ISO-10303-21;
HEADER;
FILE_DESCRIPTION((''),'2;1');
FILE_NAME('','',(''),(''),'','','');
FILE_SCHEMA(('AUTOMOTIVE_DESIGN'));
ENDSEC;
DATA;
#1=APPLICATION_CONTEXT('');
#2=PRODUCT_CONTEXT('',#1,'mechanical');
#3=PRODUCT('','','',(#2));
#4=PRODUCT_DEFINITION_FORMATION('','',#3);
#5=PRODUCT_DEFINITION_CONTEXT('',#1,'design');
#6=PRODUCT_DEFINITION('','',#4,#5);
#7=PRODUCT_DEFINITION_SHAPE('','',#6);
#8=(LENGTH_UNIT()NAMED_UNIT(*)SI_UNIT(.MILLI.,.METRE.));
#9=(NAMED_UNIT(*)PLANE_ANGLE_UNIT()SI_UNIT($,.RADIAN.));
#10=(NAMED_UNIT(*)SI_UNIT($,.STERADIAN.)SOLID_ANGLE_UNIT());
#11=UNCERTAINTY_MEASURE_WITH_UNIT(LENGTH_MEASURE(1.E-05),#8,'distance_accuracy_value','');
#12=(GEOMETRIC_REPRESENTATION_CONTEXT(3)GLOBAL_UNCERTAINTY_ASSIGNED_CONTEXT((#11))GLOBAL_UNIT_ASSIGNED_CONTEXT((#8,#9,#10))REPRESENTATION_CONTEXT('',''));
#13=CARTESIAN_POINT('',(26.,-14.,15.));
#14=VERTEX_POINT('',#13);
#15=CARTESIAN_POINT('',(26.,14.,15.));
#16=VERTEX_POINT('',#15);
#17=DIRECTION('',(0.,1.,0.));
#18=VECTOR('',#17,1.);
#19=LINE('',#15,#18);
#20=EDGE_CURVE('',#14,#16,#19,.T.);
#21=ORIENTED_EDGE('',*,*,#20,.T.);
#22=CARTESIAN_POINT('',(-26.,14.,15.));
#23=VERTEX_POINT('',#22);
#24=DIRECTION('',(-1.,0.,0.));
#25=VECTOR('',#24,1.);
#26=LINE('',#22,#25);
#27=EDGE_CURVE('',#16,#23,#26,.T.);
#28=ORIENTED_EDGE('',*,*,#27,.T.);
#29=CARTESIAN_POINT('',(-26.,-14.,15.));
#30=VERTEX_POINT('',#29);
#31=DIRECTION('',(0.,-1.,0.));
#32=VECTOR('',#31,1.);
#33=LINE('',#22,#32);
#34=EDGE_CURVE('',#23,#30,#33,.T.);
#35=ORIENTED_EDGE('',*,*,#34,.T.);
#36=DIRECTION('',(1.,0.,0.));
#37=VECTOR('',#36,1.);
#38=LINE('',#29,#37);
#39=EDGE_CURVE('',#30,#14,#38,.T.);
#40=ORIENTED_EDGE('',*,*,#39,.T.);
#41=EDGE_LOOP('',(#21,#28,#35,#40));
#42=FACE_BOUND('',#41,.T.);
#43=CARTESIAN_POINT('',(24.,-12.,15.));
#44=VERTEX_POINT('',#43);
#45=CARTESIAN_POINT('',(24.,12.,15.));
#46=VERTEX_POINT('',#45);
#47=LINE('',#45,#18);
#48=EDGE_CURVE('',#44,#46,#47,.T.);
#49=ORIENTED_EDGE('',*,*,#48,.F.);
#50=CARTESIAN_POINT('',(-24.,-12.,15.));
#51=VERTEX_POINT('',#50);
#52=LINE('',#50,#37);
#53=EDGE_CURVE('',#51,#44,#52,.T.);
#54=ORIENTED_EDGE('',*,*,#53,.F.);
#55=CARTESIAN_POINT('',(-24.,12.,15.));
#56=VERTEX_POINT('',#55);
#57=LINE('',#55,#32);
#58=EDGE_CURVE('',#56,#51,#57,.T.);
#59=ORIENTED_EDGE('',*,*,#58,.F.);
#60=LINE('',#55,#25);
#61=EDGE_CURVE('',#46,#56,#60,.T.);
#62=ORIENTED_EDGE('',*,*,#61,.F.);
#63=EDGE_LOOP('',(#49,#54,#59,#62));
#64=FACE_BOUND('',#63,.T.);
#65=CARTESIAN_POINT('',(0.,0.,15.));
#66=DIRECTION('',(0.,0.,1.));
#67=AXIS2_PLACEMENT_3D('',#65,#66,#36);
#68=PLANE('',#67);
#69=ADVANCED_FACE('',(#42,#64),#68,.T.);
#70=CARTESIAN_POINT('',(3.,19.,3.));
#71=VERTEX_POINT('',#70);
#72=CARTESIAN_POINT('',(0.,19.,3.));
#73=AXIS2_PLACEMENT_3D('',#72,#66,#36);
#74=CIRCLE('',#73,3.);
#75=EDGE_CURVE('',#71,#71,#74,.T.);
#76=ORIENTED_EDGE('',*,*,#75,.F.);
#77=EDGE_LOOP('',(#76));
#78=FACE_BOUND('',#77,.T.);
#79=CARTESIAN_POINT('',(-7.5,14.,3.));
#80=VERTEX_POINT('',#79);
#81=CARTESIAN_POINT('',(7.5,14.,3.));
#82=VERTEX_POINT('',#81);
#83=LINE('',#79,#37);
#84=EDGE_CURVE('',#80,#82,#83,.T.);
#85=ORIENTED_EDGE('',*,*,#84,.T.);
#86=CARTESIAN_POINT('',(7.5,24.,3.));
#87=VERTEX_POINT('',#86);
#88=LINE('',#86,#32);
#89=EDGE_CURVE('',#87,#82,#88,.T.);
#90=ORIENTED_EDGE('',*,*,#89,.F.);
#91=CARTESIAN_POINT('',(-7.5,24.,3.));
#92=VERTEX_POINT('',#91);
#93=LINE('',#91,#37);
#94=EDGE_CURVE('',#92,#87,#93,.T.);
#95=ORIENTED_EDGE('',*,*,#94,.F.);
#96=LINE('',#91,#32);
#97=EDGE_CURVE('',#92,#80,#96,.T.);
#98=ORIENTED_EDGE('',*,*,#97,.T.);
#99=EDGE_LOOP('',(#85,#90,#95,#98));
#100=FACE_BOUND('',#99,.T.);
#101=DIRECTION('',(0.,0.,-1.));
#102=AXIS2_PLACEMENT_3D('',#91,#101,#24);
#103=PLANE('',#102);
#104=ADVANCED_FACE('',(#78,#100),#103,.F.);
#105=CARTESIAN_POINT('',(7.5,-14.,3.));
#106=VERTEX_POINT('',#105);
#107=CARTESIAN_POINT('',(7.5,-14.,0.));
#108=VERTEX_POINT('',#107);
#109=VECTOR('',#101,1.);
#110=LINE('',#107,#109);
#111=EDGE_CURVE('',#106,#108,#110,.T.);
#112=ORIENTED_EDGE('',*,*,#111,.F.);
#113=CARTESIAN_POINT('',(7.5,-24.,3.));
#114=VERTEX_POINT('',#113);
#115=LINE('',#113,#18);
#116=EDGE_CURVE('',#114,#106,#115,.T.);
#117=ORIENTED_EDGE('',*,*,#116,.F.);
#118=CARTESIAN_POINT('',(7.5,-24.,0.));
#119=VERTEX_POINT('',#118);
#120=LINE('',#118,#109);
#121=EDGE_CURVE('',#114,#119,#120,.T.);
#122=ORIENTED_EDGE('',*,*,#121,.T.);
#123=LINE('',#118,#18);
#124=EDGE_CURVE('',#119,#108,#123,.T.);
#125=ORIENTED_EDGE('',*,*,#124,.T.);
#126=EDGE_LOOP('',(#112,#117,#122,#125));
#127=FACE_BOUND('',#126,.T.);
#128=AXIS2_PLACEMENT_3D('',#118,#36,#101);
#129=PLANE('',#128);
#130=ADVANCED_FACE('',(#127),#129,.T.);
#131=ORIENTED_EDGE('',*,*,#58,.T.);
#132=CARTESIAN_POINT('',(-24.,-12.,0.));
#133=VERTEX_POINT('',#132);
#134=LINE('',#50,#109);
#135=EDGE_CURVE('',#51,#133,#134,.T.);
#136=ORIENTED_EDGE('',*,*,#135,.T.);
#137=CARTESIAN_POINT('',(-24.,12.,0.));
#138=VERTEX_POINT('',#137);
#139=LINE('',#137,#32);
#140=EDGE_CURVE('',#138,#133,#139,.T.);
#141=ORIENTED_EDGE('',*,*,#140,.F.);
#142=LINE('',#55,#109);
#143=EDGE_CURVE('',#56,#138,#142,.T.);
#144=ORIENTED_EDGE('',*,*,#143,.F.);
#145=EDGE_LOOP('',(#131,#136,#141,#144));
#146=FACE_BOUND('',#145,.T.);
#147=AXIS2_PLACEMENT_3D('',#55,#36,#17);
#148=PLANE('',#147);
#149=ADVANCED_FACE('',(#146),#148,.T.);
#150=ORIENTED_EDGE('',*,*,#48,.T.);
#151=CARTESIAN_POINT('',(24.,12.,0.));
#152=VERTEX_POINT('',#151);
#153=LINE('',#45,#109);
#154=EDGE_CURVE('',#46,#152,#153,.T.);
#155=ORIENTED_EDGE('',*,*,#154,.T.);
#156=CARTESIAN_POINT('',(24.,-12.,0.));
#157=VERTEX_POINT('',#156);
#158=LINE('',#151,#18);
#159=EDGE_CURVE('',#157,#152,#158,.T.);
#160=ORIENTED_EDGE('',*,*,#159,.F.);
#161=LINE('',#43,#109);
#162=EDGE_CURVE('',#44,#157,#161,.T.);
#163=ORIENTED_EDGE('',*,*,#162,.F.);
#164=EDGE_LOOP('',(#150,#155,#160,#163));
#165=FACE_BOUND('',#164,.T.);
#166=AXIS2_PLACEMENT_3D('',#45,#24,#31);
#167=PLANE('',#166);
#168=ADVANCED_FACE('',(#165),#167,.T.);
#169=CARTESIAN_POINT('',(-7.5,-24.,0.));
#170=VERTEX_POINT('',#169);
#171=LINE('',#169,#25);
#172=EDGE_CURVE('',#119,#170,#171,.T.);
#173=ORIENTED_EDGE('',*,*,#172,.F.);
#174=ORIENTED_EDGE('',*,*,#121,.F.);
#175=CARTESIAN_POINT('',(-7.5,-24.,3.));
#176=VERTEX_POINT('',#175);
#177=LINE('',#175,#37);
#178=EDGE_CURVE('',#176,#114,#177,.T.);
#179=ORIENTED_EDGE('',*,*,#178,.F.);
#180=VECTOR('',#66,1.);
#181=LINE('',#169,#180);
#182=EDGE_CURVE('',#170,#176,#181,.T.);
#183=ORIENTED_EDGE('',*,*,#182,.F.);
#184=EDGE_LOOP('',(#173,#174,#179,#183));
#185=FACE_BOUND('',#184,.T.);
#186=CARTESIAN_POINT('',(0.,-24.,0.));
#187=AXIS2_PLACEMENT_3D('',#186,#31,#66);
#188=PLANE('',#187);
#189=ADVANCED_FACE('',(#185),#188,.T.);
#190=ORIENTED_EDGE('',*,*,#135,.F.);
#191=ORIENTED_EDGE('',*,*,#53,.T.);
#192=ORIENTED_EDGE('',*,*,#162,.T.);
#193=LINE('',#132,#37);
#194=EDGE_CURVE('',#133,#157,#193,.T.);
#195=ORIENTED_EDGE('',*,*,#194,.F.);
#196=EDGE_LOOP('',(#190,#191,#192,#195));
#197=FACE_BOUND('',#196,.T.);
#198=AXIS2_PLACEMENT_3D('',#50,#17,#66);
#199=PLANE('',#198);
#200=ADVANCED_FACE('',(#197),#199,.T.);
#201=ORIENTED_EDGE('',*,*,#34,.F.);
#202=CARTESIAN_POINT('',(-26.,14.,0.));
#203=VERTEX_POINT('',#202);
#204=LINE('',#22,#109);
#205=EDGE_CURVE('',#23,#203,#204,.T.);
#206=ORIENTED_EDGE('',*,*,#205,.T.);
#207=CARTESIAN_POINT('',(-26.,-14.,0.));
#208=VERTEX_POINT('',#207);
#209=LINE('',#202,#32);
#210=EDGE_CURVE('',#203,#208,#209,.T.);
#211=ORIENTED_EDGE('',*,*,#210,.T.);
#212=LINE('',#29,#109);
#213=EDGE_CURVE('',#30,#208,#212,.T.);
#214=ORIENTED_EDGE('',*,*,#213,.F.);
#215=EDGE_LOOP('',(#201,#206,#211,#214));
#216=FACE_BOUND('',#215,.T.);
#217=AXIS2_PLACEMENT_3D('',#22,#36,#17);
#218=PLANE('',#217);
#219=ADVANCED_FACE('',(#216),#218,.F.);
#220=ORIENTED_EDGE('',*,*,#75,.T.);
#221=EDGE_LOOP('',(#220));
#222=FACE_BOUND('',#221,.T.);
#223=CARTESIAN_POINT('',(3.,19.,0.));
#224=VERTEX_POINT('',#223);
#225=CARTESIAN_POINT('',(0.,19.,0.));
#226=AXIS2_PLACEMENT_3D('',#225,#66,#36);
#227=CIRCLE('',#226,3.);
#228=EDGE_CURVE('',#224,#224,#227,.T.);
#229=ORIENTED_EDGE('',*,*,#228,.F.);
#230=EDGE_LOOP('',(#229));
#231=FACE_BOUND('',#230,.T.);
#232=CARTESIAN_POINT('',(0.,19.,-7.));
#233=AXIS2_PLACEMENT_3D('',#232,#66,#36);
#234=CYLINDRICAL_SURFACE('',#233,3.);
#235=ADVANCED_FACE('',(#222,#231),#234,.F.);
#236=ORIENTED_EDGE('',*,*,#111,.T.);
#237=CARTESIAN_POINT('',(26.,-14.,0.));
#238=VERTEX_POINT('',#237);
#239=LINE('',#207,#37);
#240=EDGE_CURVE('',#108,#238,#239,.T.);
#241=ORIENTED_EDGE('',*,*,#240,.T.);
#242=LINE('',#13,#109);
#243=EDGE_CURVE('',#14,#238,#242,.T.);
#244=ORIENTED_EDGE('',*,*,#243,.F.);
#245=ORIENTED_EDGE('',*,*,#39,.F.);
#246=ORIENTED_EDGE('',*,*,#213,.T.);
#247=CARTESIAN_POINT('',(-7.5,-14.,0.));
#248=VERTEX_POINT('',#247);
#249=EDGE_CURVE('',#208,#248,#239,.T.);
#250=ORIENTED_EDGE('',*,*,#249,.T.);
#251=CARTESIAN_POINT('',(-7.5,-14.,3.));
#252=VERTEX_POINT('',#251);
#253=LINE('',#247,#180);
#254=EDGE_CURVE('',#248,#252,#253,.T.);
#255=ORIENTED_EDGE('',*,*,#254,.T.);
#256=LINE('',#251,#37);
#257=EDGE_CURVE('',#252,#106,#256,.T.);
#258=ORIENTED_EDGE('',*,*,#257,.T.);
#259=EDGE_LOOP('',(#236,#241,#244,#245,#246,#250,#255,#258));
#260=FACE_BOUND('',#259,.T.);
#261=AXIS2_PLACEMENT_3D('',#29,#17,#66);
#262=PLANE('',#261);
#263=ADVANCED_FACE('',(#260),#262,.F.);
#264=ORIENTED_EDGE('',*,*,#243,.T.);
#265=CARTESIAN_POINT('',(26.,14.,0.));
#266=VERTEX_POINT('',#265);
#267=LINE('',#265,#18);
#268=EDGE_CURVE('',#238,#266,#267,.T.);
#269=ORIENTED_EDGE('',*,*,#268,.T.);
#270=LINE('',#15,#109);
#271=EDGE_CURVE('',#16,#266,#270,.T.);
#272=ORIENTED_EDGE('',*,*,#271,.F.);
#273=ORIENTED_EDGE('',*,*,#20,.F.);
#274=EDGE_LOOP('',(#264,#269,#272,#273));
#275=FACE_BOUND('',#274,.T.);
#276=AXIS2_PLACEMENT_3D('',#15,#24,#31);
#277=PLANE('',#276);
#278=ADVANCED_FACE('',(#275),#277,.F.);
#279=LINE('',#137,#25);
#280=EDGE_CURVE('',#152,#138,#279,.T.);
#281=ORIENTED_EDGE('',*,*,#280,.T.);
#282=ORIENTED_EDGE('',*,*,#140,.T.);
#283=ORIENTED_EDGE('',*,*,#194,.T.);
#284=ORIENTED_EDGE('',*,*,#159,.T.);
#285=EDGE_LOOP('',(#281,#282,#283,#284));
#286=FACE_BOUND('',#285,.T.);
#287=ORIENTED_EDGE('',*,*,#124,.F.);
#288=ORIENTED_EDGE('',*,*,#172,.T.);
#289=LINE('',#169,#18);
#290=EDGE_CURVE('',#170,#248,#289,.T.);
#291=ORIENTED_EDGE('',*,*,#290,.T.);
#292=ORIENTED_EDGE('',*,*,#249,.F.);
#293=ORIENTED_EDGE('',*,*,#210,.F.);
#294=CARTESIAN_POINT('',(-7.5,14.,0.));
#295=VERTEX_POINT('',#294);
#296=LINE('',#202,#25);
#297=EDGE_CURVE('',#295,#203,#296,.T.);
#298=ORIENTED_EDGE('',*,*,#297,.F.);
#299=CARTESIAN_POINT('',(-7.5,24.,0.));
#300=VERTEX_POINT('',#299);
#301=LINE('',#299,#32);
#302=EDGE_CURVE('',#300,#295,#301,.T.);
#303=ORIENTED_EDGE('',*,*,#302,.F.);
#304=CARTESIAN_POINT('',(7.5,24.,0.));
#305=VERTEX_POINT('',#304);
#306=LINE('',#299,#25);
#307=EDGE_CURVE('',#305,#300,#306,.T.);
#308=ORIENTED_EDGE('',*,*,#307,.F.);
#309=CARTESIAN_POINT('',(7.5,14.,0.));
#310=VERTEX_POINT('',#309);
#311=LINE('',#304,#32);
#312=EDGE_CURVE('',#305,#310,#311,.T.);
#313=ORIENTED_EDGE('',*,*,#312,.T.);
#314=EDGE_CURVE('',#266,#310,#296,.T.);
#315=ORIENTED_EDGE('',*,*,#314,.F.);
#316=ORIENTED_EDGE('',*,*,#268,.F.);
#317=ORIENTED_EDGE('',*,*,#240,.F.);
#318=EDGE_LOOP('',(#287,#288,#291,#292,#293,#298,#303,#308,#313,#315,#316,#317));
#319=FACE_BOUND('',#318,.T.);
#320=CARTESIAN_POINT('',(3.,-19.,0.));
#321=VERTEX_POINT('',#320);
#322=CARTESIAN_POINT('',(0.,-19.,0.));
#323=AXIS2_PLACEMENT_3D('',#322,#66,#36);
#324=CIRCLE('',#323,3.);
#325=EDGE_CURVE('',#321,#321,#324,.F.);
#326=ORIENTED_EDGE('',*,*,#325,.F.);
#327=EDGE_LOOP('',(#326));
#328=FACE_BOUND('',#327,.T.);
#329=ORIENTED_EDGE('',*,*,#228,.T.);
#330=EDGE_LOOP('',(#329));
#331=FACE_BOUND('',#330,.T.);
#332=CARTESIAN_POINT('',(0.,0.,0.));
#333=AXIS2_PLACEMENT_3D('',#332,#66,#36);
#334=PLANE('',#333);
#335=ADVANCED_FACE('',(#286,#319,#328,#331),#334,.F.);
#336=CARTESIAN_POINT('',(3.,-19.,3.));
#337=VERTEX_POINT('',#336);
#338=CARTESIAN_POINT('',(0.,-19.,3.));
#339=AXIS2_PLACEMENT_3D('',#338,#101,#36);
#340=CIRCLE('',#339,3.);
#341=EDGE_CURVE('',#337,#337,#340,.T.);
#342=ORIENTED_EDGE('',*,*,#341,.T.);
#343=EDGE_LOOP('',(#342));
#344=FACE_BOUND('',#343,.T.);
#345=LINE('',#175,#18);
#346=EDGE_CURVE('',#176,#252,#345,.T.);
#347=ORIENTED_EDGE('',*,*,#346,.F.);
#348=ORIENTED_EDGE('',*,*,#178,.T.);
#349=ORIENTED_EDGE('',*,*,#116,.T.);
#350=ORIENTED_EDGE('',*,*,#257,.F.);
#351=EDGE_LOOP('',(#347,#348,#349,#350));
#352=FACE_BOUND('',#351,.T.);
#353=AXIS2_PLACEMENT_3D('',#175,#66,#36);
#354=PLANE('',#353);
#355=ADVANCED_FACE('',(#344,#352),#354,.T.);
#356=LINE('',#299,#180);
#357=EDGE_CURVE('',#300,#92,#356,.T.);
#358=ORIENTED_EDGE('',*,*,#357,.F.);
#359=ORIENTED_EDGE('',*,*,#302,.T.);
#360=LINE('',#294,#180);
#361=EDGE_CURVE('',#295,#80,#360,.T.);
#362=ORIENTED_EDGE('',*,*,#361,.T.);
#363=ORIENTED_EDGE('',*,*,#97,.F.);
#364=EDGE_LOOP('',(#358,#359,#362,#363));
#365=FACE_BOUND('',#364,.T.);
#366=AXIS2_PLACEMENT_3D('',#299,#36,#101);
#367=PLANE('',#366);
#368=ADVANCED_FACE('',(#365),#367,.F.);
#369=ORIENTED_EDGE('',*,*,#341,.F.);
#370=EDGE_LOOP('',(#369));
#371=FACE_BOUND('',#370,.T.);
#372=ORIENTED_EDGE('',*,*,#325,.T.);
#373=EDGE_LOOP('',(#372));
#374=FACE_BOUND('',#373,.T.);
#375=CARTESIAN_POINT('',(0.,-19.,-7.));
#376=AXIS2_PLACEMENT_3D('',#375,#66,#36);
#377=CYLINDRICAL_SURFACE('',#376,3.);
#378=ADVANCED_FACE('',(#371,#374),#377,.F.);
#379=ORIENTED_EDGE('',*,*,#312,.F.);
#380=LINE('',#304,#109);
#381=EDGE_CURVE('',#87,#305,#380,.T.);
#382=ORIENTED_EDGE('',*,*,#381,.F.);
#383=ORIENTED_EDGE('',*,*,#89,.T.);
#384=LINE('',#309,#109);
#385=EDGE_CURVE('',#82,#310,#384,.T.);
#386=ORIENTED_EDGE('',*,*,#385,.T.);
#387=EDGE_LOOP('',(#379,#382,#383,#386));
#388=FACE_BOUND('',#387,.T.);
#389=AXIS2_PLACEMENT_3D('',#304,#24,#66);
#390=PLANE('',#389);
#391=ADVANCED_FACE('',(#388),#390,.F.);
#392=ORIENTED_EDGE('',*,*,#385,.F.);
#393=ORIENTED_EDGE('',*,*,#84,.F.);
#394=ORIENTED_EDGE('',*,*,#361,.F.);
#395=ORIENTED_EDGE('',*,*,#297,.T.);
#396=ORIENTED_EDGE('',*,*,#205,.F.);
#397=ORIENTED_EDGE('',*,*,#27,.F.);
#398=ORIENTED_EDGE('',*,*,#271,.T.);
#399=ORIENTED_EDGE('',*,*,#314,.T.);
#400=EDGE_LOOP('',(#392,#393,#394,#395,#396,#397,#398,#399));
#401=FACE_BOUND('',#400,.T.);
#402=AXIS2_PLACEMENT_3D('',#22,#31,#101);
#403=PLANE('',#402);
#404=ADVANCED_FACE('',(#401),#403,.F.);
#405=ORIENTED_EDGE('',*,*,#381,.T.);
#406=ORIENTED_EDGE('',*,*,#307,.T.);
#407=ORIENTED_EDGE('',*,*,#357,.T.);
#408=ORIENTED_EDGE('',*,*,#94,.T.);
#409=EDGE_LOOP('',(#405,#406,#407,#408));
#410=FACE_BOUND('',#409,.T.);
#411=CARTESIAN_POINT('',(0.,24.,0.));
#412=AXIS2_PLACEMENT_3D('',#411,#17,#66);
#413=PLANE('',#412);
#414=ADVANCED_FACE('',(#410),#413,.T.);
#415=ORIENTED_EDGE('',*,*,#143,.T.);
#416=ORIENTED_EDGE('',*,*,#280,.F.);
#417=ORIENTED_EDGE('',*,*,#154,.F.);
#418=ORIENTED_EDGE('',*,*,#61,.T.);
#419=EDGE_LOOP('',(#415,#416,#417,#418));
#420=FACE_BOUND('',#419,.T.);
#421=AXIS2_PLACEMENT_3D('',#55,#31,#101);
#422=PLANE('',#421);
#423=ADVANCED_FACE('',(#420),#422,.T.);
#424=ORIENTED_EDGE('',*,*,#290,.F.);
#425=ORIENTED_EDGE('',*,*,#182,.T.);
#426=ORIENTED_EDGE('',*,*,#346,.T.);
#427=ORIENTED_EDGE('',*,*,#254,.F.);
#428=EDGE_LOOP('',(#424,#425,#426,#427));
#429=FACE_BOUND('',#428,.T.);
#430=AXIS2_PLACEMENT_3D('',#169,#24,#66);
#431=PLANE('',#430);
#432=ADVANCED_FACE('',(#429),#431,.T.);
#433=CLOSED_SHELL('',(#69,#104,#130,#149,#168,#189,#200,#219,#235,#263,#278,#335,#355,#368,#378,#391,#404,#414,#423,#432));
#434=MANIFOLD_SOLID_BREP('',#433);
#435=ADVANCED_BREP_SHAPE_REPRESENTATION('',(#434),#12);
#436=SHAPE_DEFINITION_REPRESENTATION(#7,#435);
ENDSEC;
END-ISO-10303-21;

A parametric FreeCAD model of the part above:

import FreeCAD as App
import Part
import Sketcher
from FreeCAD import Vector

doc = App.newDocument("Part")
params = doc.addObject("Spreadsheet::Sheet", "Params")
for row, (alias, value) in enumerate([
    ("sketch1_width", "52 mm"),
    ("sketch1_width2", "48 mm"),
    ("sketch1_height", "28 mm"),
    ("sketch1_height2", "24 mm"),
    ("pad1_length", "15 mm"),
    ("sketch2_width", "15 mm"),
    ("sketch2_height", "3 mm"),
    ("pad2_length", "10 mm"),
    ("sketch3_diameter", "6 mm"),
    ("pocket1_length", "10 mm"),
], start=1):
    params.set(f"A{row}", alias)
    params.set(f"B{row}", "=" + value)
    params.setAlias(f"B{row}", alias)

body = doc.addObject("PartDesign::Body", "Body")

# Sketch on XY plane
sketch1 = body.newObject("Sketcher::SketchObject", "Sketch")
sketch1.AttachmentSupport = (doc.getObject("XY_Plane"), [""])
sketch1.MapMode = "FlatFace"
sketch1.addGeometry([
    Part.LineSegment(Vector(-26, 14, 0), Vector(-26, -14, 0)),  # 0
    Part.LineSegment(Vector(-26, -14, 0), Vector(26, -14, 0)),  # 1
    Part.LineSegment(Vector(26, -14, 0), Vector(26, 14, 0)),  # 2
    Part.LineSegment(Vector(26, 14, 0), Vector(-26, 14, 0)),  # 3
    Part.LineSegment(Vector(24, -12, 0), Vector(-24, -12, 0)),  # 4
    Part.LineSegment(Vector(-24, -12, 0), Vector(-24, 12, 0)),  # 5
    Part.LineSegment(Vector(-24, 12, 0), Vector(24, 12, 0)),  # 6
    Part.LineSegment(Vector(24, 12, 0), Vector(24, -12, 0)),  # 7
], False)
sketch1.addConstraint([
    Sketcher.Constraint("Coincident", 0, 2, 1, 1),
    Sketcher.Constraint("Coincident", 1, 2, 2, 1),
    Sketcher.Constraint("Coincident", 2, 2, 3, 1),
    Sketcher.Constraint("Coincident", 3, 2, 0, 1),
    Sketcher.Constraint("Coincident", 4, 2, 5, 1),
    Sketcher.Constraint("Coincident", 5, 2, 6, 1),
    Sketcher.Constraint("Coincident", 6, 2, 7, 1),
    Sketcher.Constraint("Coincident", 7, 2, 4, 1),
    Sketcher.Constraint("Vertical", 0),
    Sketcher.Constraint("Horizontal", 1),
    Sketcher.Constraint("Vertical", 2),
    Sketcher.Constraint("Horizontal", 3),
    Sketcher.Constraint("Horizontal", 4),
    Sketcher.Constraint("Vertical", 5),
    Sketcher.Constraint("Horizontal", 6),
    Sketcher.Constraint("Vertical", 7),
    Sketcher.Constraint("Symmetric", 0, 2, 2, 2, -1, 1),
    Sketcher.Constraint("Symmetric", 4, 2, 6, 2, -1, 1),
    Sketcher.Constraint("DistanceX", 1, 1, 1, 2, 52.0),
    Sketcher.Constraint("DistanceX", 4, 2, 4, 1, 48.0),
    Sketcher.Constraint("DistanceY", 0, 2, 0, 1, 28.0),
    Sketcher.Constraint("DistanceY", 5, 1, 5, 2, 24.0),
])
sketch1.setExpression("Constraints[18]", "Params.sketch1_width")
sketch1.setExpression("Constraints[19]", "Params.sketch1_width2")
sketch1.setExpression("Constraints[20]", "Params.sketch1_height")
sketch1.setExpression("Constraints[21]", "Params.sketch1_height2")
pad1 = body.newObject("PartDesign::Pad", "Pad")
pad1.Profile = sketch1
pad1.setExpression("Length", "Params.pad1_length")

# Sketch on XZ plane
sketch2 = body.newObject("Sketcher::SketchObject", "Sketch001")
sketch2.AttachmentSupport = (doc.getObject("XZ_Plane"), [""])
sketch2.MapMode = "FlatFace"
sketch2.AttachmentOffset = App.Placement(Vector(0, 0, -14), App.Rotation())
sketch2.addGeometry([
    Part.LineSegment(Vector(-7.5, 0, 0), Vector(-7.5, 3, 0)),
    Part.LineSegment(Vector(-7.5, 3, 0), Vector(7.5, 3, 0)),
    Part.LineSegment(Vector(7.5, 3, 0), Vector(7.5, 0, 0)),
    Part.LineSegment(Vector(7.5, 0, 0), Vector(-7.5, 0, 0)),
], False)
sketch2.addConstraint([
    Sketcher.Constraint("Coincident", 0, 2, 1, 1),
    Sketcher.Constraint("Coincident", 1, 2, 2, 1),
    Sketcher.Constraint("Coincident", 2, 2, 3, 1),
    Sketcher.Constraint("Coincident", 3, 2, 0, 1),
    Sketcher.Constraint("Vertical", 0),
    Sketcher.Constraint("Horizontal", 1),
    Sketcher.Constraint("Vertical", 2),
    Sketcher.Constraint("Horizontal", 3),
    Sketcher.Constraint("Symmetric", 2, 2, 3, 2, -1, 1),
    Sketcher.Constraint("DistanceX", 1, 1, 1, 2, 15.0),
    Sketcher.Constraint("DistanceY", 0, 1, 0, 2, 3.0),
])
sketch2.setExpression("Constraints[9]", "Params.sketch2_width")
sketch2.setExpression("Constraints[10]", "Params.sketch2_height")
pad2 = body.newObject("PartDesign::Pad", "Pad001")
pad2.Profile = sketch2
pad2.setExpression("Length", "Params.pad2_length")
pad2.Reversed = True

# Sketch on XY plane
sketch3 = body.newObject("Sketcher::SketchObject", "Sketch002")
sketch3.AttachmentSupport = (doc.getObject("XY_Plane"), [""])
sketch3.MapMode = "FlatFace"
sketch3.AttachmentOffset = App.Placement(Vector(0, 0, 3), App.Rotation())
sketch3.addGeometry(Part.Circle(Vector(0, 19, 0), Vector(0, 0, 1), 3), False)
sketch3.addConstraint([
    Sketcher.Constraint("PointOnObject", 0, 3, -2),
    Sketcher.Constraint("Diameter", 0, 6.0),
    Sketcher.Constraint("DistanceY", -1, 1, 0, 3, 19.0),
])
sketch3.setExpression("Constraints[1]", "Params.sketch3_diameter")
pocket1 = body.newObject("PartDesign::Pocket", "Pocket")
pocket1.Profile = sketch3
pocket1.setExpression("Length", "Params.pocket1_length")
doc.recompute()

mirrored = body.newObject("PartDesign::Mirrored", "Mirrored")
mirrored.Originals = [pad2, pocket1]
mirrored.MirrorPlane = (doc.getObject("XZ_Plane"), [""])
body.Tip = mirrored

doc.recompute()
